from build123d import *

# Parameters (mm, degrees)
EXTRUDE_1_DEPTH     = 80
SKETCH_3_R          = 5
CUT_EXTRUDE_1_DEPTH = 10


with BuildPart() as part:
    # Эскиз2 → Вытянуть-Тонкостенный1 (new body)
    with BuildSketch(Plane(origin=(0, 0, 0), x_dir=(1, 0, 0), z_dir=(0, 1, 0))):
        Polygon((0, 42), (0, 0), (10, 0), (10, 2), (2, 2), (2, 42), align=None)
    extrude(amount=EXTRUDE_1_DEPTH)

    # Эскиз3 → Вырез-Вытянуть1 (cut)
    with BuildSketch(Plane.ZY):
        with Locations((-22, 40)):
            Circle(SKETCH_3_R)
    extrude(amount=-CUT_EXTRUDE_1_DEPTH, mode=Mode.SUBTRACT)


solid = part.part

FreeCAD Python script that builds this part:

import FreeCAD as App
import Part
import Sketcher

V = App.Vector

doc = App.newDocument("Part")
body = doc.addObject("PartDesign::Body", "Body")

# Sketch on XZ plane
sketch1 = body.newObject("Sketcher::SketchObject", "Sketch")
sketch1.AttachmentSupport = (doc.getObject("XZ_Plane"), [""])
sketch1.MapMode = "FlatFace"
sketch1.addGeometry([
    Part.LineSegment(V(0, -42, 0), V(0, 0, 0)),  # 0
    Part.LineSegment(V(0, 0, 0), V(10, 0, 0)),  # 1
    Part.LineSegment(V(10, 0, 0), V(10, -2, 0)),  # 2
    Part.LineSegment(V(10, -2, 0), V(2, -2, 0)),  # 3
    Part.LineSegment(V(2, -2, 0), V(2, -42, 0)),  # 4
    Part.LineSegment(V(2, -42, 0), V(0, -42, 0)),  # 5
], False)
sketch1.addConstraint([
    Sketcher.Constraint("Coincident", 0, 2, 1, 1),
    Sketcher.Constraint("Coincident", 1, 2, 2, 1),
    Sketcher.Constraint("Coincident", 2, 2, 3, 1),
    Sketcher.Constraint("Coincident", 3, 2, 4, 1),
    Sketcher.Constraint("Coincident", 4, 2, 5, 1),
    Sketcher.Constraint("Coincident", 5, 2, 0, 1),
    Sketcher.Constraint("Vertical", 0),
    Sketcher.Constraint("Horizontal", 1),
    Sketcher.Constraint("Vertical", 2),
    Sketcher.Constraint("Horizontal", 3),
    Sketcher.Constraint("Vertical", 4),
    Sketcher.Constraint("Horizontal", 5),
    Sketcher.Constraint("Coincident", 0, 2, -1, 1),
    Sketcher.Constraint("Equal", 5, 2),
    Sketcher.Constraint("DistanceX", 1, 1, 1, 2, 10.0),
    Sketcher.Constraint("DistanceX", 3, 2, 3, 1, 8.0),
    Sketcher.Constraint("DistanceY", 0, 1, 0, 2, 42.0),
])
pad1 = body.newObject("PartDesign::Pad", "Pad")
pad1.Profile = sketch1
pad1.Length = 80
pad1.Reversed = True

# Sketch on YZ plane
sketch2 = body.newObject("Sketcher::SketchObject", "Sketch001")
sketch2.AttachmentSupport = (doc.getObject("YZ_Plane"), [""])
sketch2.MapMode = "FlatFace"
sketch2.addGeometry(Part.Circle(V(40, -22, 0), V(0, 0, 1), 5), False)
sketch2.addConstraint([
    Sketcher.Constraint("Diameter", 0, 10.0),
    Sketcher.Constraint("DistanceX", -1, 1, 0, 3, 40.0),
    Sketcher.Constraint("DistanceY", 0, 3, -1, 1, 22.0),
])
pocket1 = body.newObject("PartDesign::Pocket", "Pocket")
pocket1.Profile = sketch2
pocket1.Length = 10
pocket1.Reversed = True

doc.recompute()
